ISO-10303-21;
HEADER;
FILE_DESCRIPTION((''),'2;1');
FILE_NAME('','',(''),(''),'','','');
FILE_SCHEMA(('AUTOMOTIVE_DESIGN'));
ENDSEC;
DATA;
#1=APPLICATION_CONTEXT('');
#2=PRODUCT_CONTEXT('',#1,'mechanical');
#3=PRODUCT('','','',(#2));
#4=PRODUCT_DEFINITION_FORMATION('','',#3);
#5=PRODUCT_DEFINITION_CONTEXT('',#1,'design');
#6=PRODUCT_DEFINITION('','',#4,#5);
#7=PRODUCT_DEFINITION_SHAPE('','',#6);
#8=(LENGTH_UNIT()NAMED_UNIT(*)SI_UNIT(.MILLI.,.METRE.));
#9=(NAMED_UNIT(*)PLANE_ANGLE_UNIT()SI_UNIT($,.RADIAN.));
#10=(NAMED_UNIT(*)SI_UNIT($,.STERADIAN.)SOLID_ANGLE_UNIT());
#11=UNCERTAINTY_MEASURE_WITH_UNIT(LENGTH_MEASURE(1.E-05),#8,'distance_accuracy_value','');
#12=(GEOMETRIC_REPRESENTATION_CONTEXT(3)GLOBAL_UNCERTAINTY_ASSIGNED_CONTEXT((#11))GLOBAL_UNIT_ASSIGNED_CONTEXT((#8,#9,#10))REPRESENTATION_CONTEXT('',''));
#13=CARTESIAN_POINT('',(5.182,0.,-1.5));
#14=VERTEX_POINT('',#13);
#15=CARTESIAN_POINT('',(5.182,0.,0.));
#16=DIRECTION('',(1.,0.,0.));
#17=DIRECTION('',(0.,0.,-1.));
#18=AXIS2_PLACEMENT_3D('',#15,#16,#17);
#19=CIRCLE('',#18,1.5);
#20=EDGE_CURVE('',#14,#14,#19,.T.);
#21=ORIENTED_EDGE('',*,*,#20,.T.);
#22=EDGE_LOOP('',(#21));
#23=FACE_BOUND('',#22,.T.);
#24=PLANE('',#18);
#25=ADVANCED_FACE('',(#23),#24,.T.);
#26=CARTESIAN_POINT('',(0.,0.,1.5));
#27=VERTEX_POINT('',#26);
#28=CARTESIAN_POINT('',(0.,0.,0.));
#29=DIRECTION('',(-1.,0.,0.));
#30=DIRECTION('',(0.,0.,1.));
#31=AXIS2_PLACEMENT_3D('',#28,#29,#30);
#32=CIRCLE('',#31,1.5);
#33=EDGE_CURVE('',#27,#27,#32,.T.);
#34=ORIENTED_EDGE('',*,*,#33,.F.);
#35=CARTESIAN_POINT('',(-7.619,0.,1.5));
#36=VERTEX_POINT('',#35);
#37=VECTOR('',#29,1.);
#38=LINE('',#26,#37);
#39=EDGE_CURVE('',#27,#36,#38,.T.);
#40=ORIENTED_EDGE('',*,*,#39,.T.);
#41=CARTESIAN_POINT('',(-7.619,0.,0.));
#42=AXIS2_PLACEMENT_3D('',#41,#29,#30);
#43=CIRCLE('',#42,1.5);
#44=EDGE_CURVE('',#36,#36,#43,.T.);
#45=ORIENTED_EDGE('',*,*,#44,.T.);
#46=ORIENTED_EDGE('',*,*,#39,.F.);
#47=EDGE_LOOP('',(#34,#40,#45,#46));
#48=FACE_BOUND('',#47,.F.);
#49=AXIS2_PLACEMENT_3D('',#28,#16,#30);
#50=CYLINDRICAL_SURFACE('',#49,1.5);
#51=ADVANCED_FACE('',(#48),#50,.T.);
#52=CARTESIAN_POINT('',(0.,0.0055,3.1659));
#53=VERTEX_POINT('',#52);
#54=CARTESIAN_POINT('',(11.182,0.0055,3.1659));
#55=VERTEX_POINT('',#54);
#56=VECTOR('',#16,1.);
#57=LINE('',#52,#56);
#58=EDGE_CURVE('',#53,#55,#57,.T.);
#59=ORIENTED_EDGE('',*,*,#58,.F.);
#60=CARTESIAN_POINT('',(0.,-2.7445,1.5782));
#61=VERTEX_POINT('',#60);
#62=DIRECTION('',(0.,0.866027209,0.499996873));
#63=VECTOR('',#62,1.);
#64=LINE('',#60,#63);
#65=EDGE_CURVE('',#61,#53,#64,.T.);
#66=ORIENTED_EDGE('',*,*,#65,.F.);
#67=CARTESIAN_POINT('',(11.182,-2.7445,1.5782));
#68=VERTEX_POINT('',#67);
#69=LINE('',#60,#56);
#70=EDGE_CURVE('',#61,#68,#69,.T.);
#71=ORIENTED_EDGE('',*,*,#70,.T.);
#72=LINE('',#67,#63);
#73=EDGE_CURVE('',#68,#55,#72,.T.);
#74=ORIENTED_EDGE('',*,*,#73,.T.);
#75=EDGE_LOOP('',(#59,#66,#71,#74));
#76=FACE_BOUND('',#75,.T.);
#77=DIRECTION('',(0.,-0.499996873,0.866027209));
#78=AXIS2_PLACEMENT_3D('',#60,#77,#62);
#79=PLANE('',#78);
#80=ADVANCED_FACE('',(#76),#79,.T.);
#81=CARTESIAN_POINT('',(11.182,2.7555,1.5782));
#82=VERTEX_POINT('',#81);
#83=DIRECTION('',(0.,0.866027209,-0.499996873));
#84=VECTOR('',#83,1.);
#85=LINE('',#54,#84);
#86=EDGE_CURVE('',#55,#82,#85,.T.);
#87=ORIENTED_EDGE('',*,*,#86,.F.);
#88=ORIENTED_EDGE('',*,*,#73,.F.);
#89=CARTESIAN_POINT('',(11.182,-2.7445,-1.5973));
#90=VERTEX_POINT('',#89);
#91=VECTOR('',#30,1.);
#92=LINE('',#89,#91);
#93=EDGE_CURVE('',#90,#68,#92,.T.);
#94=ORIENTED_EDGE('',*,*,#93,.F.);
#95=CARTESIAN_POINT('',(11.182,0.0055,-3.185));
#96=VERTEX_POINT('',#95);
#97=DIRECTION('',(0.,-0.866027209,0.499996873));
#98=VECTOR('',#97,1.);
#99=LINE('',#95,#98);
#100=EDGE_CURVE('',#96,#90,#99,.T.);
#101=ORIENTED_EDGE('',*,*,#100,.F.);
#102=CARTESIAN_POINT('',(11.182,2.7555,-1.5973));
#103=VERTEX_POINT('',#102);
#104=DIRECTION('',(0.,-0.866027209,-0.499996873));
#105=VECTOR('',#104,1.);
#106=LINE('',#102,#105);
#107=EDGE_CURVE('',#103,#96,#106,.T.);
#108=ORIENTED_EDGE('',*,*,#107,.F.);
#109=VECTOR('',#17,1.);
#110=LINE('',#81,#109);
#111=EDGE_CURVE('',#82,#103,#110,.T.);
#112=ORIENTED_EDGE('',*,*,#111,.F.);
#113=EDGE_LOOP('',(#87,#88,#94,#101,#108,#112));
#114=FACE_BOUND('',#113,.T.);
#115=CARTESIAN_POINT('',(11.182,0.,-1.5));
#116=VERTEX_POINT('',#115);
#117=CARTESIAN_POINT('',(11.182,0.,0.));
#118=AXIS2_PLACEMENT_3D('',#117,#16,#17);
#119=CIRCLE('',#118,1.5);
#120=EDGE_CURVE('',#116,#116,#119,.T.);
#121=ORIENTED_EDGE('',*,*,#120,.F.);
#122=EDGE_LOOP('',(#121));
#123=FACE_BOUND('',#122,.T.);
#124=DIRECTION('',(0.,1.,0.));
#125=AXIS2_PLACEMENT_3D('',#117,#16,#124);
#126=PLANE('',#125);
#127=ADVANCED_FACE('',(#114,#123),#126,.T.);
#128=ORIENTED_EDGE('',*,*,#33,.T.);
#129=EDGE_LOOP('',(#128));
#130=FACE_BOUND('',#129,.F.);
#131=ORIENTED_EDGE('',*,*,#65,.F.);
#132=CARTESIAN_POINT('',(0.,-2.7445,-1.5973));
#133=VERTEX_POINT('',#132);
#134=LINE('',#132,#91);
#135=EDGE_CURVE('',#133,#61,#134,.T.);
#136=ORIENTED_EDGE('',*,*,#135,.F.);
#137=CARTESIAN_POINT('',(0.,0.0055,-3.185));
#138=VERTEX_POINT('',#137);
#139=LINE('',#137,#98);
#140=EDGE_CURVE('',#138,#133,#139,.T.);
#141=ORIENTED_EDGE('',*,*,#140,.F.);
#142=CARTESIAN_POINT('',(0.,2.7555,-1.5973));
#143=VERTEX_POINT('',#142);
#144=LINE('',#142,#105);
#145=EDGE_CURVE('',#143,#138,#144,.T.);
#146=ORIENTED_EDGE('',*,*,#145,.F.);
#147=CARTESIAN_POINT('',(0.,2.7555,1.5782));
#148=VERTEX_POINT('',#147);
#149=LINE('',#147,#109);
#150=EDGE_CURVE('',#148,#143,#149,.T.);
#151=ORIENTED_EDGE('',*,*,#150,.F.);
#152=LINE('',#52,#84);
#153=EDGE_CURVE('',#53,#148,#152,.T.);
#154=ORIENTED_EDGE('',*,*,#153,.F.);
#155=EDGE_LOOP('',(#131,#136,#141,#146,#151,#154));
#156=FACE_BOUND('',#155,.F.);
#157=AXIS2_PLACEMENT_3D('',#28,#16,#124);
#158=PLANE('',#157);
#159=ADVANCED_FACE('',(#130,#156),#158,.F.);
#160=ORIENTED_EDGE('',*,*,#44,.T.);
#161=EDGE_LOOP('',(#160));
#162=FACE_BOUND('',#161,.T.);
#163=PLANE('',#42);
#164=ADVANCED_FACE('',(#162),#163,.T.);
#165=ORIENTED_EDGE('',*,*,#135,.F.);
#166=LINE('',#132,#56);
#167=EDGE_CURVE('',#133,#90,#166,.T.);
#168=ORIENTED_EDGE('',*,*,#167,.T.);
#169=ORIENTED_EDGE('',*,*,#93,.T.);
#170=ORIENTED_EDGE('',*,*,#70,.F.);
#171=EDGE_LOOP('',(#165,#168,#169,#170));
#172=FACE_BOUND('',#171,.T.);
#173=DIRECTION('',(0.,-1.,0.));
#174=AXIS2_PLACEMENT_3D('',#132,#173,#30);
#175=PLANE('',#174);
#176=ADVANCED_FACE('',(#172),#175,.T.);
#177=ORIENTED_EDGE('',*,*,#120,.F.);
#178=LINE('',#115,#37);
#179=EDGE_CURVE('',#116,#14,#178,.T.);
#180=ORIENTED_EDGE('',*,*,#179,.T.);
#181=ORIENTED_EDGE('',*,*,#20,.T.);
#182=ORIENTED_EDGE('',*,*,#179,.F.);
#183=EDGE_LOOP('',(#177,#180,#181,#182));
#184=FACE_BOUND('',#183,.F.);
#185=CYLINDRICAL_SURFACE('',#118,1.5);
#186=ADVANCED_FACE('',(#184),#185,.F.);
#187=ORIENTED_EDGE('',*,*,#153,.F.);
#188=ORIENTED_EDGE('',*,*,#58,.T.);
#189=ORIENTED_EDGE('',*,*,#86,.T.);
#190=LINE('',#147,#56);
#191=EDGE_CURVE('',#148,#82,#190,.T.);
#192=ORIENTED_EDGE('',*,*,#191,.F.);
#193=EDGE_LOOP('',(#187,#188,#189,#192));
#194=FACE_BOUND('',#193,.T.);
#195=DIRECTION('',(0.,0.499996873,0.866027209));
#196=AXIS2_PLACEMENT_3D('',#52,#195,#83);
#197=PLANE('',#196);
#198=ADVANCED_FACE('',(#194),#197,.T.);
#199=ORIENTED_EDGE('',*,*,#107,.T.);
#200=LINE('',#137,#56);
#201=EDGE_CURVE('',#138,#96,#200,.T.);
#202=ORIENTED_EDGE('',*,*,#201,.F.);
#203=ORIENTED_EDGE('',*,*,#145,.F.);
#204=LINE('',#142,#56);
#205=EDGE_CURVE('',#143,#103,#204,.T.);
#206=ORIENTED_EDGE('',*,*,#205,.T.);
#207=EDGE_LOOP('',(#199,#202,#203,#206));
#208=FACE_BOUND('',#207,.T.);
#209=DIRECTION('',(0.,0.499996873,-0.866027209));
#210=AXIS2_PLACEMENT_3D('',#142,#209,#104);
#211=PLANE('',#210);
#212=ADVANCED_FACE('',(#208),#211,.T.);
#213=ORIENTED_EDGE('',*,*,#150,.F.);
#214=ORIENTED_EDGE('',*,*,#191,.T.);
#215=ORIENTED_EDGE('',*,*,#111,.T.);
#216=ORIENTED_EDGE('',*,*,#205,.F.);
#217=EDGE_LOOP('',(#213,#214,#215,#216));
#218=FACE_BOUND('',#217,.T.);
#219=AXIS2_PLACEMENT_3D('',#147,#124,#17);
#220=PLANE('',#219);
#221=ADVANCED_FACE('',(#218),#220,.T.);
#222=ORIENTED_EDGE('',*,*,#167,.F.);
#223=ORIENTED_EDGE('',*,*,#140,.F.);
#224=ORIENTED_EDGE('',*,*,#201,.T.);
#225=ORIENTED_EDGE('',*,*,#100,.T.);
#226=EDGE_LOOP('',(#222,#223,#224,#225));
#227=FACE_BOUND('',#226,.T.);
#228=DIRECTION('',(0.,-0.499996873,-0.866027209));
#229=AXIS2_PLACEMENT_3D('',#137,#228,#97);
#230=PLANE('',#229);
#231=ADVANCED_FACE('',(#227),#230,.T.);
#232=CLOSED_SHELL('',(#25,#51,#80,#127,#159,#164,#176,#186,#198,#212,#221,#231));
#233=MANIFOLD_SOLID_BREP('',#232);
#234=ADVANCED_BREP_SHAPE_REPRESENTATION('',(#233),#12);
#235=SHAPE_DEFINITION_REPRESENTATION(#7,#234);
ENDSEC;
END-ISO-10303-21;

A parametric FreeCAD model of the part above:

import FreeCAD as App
import Part
import Sketcher

V = App.Vector
Q = App.Units.Quantity

doc = App.newDocument("Part")
body = doc.addObject("PartDesign::Body", "Body")

# Sketch on YZ plane
sketch1 = body.newObject("Sketcher::SketchObject", "Sketch")
sketch1.AttachmentSupport = (doc.getObject("YZ_Plane"), [""])
sketch1.MapMode = "FlatFace"
sketch1.addGeometry([
    Part.LineSegment(V(2.8, 1.6, 0), V(0, 3.2, 0)),  # 0
    Part.LineSegment(V(0, 3.2, 0), V(-2.7, 1.6, 0)),  # 1
    Part.LineSegment(V(-2.7, 1.6, 0), V(-2.7, -1.6, 0)),  # 2
    Part.LineSegment(V(-2.7, -1.6, 0), V(0, -3.2, 0)),  # 3
    Part.LineSegment(V(0, -3.2, 0), V(2.8, -1.6, 0)),  # 4
    Part.LineSegment(V(2.8, -1.6, 0), V(2.8, 1.6, 0)),  # 5
], False)
sketch1.addConstraint([
    Sketcher.Constraint("Coincident", 0, 2, 1, 1),
    Sketcher.Constraint("Coincident", 1, 2, 2, 1),
    Sketcher.Constraint("Coincident", 2, 2, 3, 1),
    Sketcher.Constraint("Coincident", 3, 2, 4, 1),
    Sketcher.Constraint("Coincident", 4, 2, 5, 1),
    Sketcher.Constraint("Coincident", 5, 2, 0, 1),
    Sketcher.Constraint("Vertical", 2),
    Sketcher.Constraint("Vertical", 5),
    Sketcher.Constraint("Parallel", 0, 3),
    Sketcher.Constraint("Parallel", 1, 4),
    Sketcher.Constraint("Horizontal", 2, 2, 4, 2),
    Sketcher.Constraint("Horizontal", 1, 2, 5, 2),
    Sketcher.Constraint("Vertical", 0, 2, 3, 2),
    Sketcher.Constraint("DistanceX", 2, 2, 4, 2, Q("5.5 mm")),
    Sketcher.Constraint("Angle", 0, Q("150.0002 deg")),
    Sketcher.Constraint("DistanceY", 2, 2, 2, 1, Q("3.1755 mm")),
    Sketcher.Constraint("DistanceY", -1, 1, 0, 2, Q("3.166 mm")),
    Sketcher.Constraint("DistanceX", -1, 1, 0, 2, Q("0.0055 mm")),
])
pad1 = body.newObject("PartDesign::Pad", "Pad")
pad1.Profile = sketch1
pad1.Length = 11.182

# Sketch on YZ plane
sketch2 = body.newObject("Sketcher::SketchObject", "Sketch001")
sketch2.AttachmentSupport = (doc.getObject("YZ_Plane"), [""])
sketch2.MapMode = "FlatFace"
sketch2.addGeometry(Part.Circle(V(0, 0, 0), V(0, 0, 1), 1.5), False)
sketch2.addConstraint([
    Sketcher.Constraint("Coincident", 0, 3, -1, 1),
    Sketcher.Constraint("Diameter", 0, Q("3 mm")),
])
pad2 = body.newObject("PartDesign::Pad", "Pad001")
pad2.Profile = sketch2
pad2.Length = 7.619
pad2.Reversed = True

# Sketch on YZ plane
sketch3 = body.newObject("Sketcher::SketchObject", "Sketch002")
sketch3.AttachmentSupport = (doc.getObject("YZ_Plane"), [""])
sketch3.MapMode = "FlatFace"
sketch3.AttachmentOffset = App.Placement(V(0, 0, 11.182), App.Rotation())
sketch3.addGeometry(Part.Circle(V(0, 0, 0), V(0, 0, 1), 1.5), False)
sketch3.addConstraint([
    Sketcher.Constraint("Coincident", 0, 3, -1, 1),
    Sketcher.Constraint("Diameter", 0, Q("3 mm")),
])
pocket1 = body.newObject("PartDesign::Pocket", "Pocket")
pocket1.Profile = sketch3
pocket1.Length = 6

doc.recompute()
